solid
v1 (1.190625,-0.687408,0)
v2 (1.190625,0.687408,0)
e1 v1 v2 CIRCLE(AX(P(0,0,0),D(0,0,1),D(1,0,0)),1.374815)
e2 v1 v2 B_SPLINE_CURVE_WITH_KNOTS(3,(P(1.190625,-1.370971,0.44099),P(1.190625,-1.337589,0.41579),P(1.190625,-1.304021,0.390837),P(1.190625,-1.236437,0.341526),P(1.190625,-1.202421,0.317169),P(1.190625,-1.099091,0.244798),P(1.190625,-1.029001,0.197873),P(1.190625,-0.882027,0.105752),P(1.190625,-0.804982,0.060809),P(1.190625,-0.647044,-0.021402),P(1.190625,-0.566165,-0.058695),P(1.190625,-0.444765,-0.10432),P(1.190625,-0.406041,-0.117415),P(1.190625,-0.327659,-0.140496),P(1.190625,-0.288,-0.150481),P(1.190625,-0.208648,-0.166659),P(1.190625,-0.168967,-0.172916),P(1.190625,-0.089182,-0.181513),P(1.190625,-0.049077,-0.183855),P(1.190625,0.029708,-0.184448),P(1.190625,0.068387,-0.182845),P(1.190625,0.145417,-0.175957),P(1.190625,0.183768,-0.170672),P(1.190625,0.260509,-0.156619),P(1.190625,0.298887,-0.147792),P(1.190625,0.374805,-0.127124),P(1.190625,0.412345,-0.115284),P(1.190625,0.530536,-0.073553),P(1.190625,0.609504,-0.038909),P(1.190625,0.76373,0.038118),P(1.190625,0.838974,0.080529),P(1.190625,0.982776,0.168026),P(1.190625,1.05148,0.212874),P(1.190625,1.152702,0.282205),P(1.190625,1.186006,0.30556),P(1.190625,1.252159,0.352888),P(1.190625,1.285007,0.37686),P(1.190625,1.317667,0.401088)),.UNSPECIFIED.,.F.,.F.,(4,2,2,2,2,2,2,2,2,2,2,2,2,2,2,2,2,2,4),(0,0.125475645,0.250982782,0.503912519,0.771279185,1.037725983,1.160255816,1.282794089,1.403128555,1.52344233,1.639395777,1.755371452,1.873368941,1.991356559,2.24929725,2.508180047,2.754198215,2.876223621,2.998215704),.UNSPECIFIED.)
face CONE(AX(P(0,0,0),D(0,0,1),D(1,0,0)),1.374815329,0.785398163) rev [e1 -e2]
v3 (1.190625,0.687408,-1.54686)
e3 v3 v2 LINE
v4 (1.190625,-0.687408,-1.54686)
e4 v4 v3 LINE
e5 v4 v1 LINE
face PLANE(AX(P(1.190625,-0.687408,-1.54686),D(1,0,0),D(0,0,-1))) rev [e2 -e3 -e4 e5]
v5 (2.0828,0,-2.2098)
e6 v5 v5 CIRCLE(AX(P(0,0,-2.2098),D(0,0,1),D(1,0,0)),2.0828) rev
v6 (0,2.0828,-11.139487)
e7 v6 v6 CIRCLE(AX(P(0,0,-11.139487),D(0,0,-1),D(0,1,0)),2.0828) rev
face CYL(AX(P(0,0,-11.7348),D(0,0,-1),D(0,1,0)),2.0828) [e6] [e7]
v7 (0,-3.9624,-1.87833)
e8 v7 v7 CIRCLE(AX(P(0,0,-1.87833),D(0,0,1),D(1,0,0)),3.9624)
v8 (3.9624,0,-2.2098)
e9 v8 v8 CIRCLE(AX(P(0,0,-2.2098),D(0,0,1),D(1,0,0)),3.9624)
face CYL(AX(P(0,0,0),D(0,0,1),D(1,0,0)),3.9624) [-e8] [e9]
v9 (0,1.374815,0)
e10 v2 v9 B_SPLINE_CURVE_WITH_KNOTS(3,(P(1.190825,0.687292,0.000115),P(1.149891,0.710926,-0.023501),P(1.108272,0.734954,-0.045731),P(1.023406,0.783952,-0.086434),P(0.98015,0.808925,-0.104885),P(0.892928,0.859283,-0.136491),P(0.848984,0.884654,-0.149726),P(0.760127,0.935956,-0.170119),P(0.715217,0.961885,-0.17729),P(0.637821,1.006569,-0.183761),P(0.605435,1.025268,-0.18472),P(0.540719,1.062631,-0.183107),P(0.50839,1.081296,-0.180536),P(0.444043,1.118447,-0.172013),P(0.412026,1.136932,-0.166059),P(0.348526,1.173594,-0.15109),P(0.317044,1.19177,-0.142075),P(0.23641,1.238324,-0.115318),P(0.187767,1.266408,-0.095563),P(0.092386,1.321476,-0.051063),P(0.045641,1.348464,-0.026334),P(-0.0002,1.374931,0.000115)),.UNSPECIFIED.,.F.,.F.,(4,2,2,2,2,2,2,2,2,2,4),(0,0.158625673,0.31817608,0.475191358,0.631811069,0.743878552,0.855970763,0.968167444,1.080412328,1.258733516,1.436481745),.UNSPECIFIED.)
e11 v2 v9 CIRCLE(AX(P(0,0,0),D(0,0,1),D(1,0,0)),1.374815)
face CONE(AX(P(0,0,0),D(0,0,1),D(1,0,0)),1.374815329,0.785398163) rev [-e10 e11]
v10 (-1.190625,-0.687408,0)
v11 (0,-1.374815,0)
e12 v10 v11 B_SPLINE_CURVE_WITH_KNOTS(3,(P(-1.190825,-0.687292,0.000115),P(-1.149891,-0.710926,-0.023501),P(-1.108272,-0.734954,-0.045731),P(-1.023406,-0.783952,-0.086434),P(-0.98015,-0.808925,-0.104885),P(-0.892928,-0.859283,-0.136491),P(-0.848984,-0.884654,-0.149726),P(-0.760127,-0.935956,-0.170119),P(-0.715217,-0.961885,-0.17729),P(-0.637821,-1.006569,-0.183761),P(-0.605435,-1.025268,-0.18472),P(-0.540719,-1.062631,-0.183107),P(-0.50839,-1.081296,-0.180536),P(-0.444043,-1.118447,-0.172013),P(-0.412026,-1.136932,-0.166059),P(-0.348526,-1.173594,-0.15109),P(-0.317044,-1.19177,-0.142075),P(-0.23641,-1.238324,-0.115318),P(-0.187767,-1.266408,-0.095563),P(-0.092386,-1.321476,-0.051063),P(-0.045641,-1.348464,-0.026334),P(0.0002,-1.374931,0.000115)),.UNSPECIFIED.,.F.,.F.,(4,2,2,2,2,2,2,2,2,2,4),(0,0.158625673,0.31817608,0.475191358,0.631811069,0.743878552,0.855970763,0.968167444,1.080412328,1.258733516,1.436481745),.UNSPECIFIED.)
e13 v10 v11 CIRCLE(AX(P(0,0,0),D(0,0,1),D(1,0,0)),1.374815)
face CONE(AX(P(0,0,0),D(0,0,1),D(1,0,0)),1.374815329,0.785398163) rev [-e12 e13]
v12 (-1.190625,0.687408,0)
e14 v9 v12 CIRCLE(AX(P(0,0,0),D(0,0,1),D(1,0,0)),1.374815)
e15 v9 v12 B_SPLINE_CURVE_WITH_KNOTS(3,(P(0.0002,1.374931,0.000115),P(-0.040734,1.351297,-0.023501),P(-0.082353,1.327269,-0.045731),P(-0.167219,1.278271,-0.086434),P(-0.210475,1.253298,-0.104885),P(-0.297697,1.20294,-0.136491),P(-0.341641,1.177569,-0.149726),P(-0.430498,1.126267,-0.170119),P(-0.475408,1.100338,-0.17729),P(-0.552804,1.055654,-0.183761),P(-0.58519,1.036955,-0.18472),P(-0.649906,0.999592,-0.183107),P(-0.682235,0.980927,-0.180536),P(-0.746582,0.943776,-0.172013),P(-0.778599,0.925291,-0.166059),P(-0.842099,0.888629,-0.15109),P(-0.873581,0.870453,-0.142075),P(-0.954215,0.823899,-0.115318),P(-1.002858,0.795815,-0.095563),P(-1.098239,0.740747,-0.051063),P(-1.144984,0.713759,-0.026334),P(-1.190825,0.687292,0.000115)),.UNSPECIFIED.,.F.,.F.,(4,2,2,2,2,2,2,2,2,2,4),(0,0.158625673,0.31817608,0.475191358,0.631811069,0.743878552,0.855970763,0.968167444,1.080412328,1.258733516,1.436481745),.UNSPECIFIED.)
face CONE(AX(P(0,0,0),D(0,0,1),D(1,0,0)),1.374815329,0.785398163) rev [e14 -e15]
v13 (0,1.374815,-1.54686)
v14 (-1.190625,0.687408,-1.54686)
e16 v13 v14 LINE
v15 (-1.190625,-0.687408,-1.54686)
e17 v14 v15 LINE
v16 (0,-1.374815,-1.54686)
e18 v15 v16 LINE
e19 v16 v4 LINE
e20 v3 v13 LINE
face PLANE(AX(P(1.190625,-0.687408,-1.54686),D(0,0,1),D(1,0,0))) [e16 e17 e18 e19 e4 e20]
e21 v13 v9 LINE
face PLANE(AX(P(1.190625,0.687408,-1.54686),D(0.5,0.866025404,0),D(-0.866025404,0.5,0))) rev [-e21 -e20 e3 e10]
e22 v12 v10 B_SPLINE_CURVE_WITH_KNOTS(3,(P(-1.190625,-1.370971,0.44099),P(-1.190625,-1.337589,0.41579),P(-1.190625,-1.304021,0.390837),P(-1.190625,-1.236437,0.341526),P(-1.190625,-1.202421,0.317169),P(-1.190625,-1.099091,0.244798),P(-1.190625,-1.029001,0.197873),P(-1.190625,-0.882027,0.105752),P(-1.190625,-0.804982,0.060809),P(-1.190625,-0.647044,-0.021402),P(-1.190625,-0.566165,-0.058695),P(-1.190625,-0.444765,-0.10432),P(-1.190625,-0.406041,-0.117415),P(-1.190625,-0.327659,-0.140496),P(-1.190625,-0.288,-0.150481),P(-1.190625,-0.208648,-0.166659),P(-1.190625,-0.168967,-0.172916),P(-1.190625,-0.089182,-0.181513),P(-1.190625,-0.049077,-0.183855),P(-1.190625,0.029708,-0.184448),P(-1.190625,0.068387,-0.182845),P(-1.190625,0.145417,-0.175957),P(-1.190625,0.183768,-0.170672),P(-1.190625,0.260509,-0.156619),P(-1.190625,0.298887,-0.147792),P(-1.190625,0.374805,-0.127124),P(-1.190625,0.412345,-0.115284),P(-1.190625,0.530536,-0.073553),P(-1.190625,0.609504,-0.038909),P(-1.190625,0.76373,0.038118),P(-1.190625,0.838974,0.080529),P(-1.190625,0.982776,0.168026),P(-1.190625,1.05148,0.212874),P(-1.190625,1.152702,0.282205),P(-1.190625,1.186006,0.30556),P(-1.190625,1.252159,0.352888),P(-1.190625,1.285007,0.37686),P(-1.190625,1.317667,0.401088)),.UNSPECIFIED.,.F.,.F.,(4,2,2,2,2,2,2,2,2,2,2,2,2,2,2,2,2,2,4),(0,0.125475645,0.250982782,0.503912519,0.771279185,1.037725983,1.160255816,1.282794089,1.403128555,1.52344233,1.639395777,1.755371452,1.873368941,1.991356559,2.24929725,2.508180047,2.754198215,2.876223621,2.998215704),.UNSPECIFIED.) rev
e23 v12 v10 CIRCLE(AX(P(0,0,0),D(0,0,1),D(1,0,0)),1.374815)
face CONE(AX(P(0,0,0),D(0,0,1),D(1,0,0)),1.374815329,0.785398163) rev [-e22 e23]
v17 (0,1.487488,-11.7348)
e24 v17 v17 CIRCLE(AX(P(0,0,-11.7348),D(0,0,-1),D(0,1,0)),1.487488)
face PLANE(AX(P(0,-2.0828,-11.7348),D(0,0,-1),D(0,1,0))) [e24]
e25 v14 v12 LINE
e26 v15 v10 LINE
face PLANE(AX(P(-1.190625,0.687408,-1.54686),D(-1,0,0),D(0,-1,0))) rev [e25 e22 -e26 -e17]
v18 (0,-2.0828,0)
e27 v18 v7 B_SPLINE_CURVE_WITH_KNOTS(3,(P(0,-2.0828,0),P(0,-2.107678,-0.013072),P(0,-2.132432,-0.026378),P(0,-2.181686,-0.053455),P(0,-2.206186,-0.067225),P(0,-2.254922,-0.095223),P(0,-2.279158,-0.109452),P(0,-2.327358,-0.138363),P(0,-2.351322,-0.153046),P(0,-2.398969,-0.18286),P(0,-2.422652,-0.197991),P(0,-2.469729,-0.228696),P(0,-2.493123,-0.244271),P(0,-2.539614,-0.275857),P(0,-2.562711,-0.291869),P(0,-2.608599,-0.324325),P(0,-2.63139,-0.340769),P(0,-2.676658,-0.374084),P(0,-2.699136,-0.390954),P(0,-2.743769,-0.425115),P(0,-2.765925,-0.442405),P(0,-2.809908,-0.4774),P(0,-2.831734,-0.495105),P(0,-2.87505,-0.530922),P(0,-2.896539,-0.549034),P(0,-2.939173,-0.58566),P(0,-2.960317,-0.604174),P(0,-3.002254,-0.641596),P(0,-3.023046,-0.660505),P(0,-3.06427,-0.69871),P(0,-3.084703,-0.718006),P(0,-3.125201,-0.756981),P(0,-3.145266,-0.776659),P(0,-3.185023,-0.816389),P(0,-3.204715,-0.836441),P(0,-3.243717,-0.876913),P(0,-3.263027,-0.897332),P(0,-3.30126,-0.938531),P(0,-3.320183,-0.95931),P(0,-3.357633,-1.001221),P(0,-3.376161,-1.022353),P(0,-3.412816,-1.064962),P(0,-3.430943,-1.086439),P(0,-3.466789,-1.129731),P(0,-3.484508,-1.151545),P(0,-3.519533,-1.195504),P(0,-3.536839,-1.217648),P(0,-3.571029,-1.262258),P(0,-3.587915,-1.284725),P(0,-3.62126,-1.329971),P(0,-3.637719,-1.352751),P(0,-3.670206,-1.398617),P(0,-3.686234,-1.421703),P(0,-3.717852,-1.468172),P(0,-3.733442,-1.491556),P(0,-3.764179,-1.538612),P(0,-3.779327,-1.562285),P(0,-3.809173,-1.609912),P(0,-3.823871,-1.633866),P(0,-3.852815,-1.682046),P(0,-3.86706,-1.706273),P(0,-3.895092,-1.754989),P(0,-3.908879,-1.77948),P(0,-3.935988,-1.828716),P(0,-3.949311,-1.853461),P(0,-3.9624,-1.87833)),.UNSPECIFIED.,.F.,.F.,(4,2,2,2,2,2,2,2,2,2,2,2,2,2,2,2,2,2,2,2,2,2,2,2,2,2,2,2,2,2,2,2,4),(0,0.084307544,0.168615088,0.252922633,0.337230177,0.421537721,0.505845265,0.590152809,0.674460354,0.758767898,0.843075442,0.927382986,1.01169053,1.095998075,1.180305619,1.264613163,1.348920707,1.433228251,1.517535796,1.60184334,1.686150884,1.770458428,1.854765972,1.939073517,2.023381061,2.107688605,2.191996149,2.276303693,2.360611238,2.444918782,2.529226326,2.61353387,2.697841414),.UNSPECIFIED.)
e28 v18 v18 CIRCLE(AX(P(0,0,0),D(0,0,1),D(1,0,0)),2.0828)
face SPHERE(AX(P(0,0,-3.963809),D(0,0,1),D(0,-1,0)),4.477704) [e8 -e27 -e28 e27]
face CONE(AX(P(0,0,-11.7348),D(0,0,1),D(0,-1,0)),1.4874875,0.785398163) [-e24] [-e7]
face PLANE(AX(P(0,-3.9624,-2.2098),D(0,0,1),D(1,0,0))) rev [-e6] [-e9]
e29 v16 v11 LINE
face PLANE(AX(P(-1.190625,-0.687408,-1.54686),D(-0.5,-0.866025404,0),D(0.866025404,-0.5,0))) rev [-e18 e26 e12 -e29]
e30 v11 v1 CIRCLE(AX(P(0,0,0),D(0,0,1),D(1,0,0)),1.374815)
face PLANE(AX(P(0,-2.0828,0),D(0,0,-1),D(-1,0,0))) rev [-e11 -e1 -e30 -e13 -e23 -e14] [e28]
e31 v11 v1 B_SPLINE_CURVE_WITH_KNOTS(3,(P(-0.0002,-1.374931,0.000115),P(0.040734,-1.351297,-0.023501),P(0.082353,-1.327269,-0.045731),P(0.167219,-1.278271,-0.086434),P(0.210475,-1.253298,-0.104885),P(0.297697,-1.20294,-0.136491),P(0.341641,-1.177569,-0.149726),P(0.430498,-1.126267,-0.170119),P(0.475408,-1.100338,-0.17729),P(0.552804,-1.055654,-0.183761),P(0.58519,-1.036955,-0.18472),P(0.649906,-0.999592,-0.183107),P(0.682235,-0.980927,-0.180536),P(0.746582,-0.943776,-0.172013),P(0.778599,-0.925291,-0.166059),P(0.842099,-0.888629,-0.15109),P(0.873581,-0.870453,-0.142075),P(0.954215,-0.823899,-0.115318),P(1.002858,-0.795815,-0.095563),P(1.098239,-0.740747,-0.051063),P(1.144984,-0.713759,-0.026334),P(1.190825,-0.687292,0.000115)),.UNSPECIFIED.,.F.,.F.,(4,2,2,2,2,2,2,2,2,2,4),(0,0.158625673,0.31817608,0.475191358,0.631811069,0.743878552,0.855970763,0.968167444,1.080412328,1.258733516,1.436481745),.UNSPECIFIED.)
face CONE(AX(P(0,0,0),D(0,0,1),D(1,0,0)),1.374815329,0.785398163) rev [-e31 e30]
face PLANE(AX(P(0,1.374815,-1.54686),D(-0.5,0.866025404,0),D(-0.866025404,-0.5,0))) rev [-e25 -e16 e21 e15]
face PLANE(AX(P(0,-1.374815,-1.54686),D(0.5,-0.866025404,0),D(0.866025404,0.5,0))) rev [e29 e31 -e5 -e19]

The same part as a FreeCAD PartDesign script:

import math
import FreeCAD as App
import Part
import Sketcher
from FreeCAD import Vector
Q = App.Units.Quantity


def edges_at(feature, points):
    """Names of the edges that pass closest to the given points."""
    edges = feature.Shape.Edges
    near = lambda p: min(range(len(edges)), key=lambda i: edges[i].distToShape(Part.Vertex(*p))[0])
    return sorted({f"Edge{near(p) + 1}" for p in points})

doc = App.newDocument("Part")
params = doc.addObject("Spreadsheet::Sheet", "Params")
for row, (alias, value) in enumerate([
    ("sketch1_width", "0.082 in"),
    ("sketch1_height", "0.375 in"),
    ("revolution_angle", "360 deg"),
    ("chamfer_size", "0.595313 mm"),
    ("sketch2_width", "0.082 in"),
    ("sketch2_width2", "0.156 in"),
    ("sketch2_height", "0.087 in"),
    ("revolution2_angle", "360 deg"),
    ("pocket1_length", "0.0609 in"),
    ("groove_angle", "360 deg"),
], start=1):
    params.set(f"A{row}", alias)
    params.set(f"B{row}", "=" + value)
    params.setAlias(f"B{row}", alias)

body = doc.addObject("PartDesign::Body", "Body")

sketch1 = doc.addObject("Sketcher::SketchObject", "Sketch")
body.addObject(sketch1)
sketch1.AttachmentSupport = (doc.YZ_Plane, [""])
sketch1.MapMode = "FlatFace"
sketch1.addGeometry([
    Part.LineSegment(Vector(2.1, -2.2, 0), Vector(0, -2.2, 0)),
    Part.LineSegment(Vector(0, -2.2, 0), Vector(0, -11.7, 0)),
    Part.LineSegment(Vector(0, -11.7, 0), Vector(2.1, -11.7, 0)),
    Part.LineSegment(Vector(2.1, -11.7, 0), Vector(2.1, -2.2, 0)),
], False)
sketch1.addConstraint([
    Sketcher.Constraint("Coincident", 0, 2, 1, 1),
    Sketcher.Constraint("Coincident", 1, 2, 2, 1),
    Sketcher.Constraint("Coincident", 2, 2, 3, 1),
    Sketcher.Constraint("Coincident", 3, 2, 0, 1),
    Sketcher.Constraint("Horizontal", 0),
    Sketcher.Constraint("Vertical", 1),
    Sketcher.Constraint("Horizontal", 2),
    Sketcher.Constraint("Vertical", 3),
    Sketcher.Constraint("PointOnObject", 0, 2, -2),
    Sketcher.Constraint("DistanceX", 0, 2, 0, 1, Q("0.082 in")),
    Sketcher.Constraint("DistanceY", 1, 2, 1, 1, Q("0.375 in")),
    Sketcher.Constraint("DistanceY", 0, 2, -1, 1, Q("0.087 in")),
])
sketch1.setExpression("Constraints[9]", "Params.sketch1_width")
sketch1.setExpression("Constraints[10]", "Params.sketch1_height")
revolution = doc.addObject("PartDesign::Revolution", "Revolution")
body.addObject(revolution)
revolution.Profile = sketch1
revolution.ReferenceAxis = (sketch1, ["V_Axis"])
revolution.setExpression("Angle", "Params.revolution_angle")
doc.recompute()

chamfer = doc.addObject("PartDesign::Chamfer", "Chamfer")
body.addObject(chamfer)
chamfer.Base = (revolution, edges_at(revolution, [(0, -2.083, -11.735)]))
chamfer.setExpression("Size", "Params.chamfer_size")

sketch2 = doc.addObject("Sketcher::SketchObject", "Sketch001")
body.addObject(sketch2)
sketch2.AttachmentSupport = (doc.YZ_Plane, [""])
sketch2.MapMode = "FlatFace"
sketch2.addGeometry([
    Part.LineSegment(Vector(3.96, -2.21, 0), Vector(3.96, -1.88, 0)),
    Part.ArcOfCircle(Part.Circle(Vector(0, -3.96, 0), Vector(0, 0, 1), 4.48), math.radians(28), math.radians(62)),
    Part.LineSegment(Vector(2.08, 0, 0), Vector(0, 0, 0)),
    Part.LineSegment(Vector(0, 0, 0), Vector(0, -2.21, 0)),
    Part.LineSegment(Vector(0, -2.21, 0), Vector(3.96, -2.21, 0)),
], False)
sketch2.addConstraint([
    Sketcher.Constraint("Coincident", 0, 2, 1, 1),
    Sketcher.Constraint("Coincident", 1, 2, 2, 1),
    Sketcher.Constraint("Coincident", 2, 2, 3, 1),
    Sketcher.Constraint("Coincident", 3, 2, 4, 1),
    Sketcher.Constraint("Coincident", 4, 2, 0, 1),
    Sketcher.Constraint("Vertical", 0),
    Sketcher.Constraint("Horizontal", 2),
    Sketcher.Constraint("Vertical", 3),
    Sketcher.Constraint("Horizontal", 4),
    Sketcher.Constraint("Coincident", 2, 2, -1, 1),
    Sketcher.Constraint("PointOnObject", 1, 3, -2),
    Sketcher.Constraint("DistanceX", 2, 2, 2, 1, Q("0.082 in")),
    Sketcher.Constraint("DistanceX", 4, 1, 4, 2, Q("0.156 in")),
    Sketcher.Constraint("DistanceY", 3, 2, 3, 1, Q("0.087 in")),
    Sketcher.Constraint("Radius", 1, 4.477704),
])
sketch2.setExpression("Constraints[11]", "Params.sketch2_width")
sketch2.setExpression("Constraints[12]", "Params.sketch2_width2")
sketch2.setExpression("Constraints[13]", "Params.sketch2_height")
revolution2 = doc.addObject("PartDesign::Revolution", "Revolution001")
body.addObject(revolution2)
revolution2.Profile = sketch2
revolution2.ReferenceAxis = (sketch2, ["V_Axis"])
revolution2.setExpression("Angle", "Params.revolution2_angle")

sketch3 = doc.addObject("Sketcher::SketchObject", "Sketch002")
body.addObject(sketch3)
sketch3.AttachmentSupport = (doc.XY_Plane, [""])
sketch3.MapMode = "FlatFace"
sketch3.addGeometry([
    Part.LineSegment(Vector(1.2, -0.7, 0), Vector(1.2, 0.7, 0)),
    Part.LineSegment(Vector(1.2, 0.7, 0), Vector(0, 1.4, 0)),
    Part.LineSegment(Vector(0, 1.4, 0), Vector(-1.2, 0.7, 0)),
    Part.LineSegment(Vector(-1.2, 0.7, 0), Vector(-1.2, -0.7, 0)),
    Part.LineSegment(Vector(-1.2, -0.7, 0), Vector(0, -1.4, 0)),
    Part.LineSegment(Vector(0, -1.4, 0), Vector(1.2, -0.7, 0)),
], False)
sketch3.addConstraint([
    Sketcher.Constraint("Coincident", 0, 2, 1, 1),
    Sketcher.Constraint("Coincident", 1, 2, 2, 1),
    Sketcher.Constraint("Coincident", 2, 2, 3, 1),
    Sketcher.Constraint("Coincident", 3, 2, 4, 1),
    Sketcher.Constraint("Coincident", 4, 2, 5, 1),
    Sketcher.Constraint("Coincident", 5, 2, 0, 1),
    Sketcher.Constraint("Vertical", 0),
    Sketcher.Constraint("Vertical", 3),
    Sketcher.Constraint("Symmetric", 0, 2, 3, 2, -1, 1),
    Sketcher.Constraint("Symmetric", 1, 2, 4, 2, -1, 1),
    Sketcher.Constraint("PointOnObject", 1, 2, -2),
    Sketcher.Constraint("Parallel", 2, 5),
    Sketcher.Constraint("Horizontal", 0, 2, 2, 2),
    Sketcher.Constraint("Angle", 1, Q("150 deg")),
    Sketcher.Constraint("DistanceX", -1, 1, 0, 2, Q("0.046875 in")),
    Sketcher.Constraint("DistanceY", 0, 1, 0, 2, 1.374815),
])
pocket1 = doc.addObject("PartDesign::Pocket", "Pocket")
body.addObject(pocket1)
pocket1.Profile = sketch3
pocket1.setExpression("Length", "Params.pocket1_length")

sketch4 = doc.addObject("Sketcher::SketchObject", "Sketch003")
body.addObject(sketch4)
sketch4.AttachmentSupport = (doc.YZ_Plane, [""])
sketch4.MapMode = "FlatFace"
sketch4.addGeometry([
    Part.LineSegment(Vector(0, 0, 0), Vector(-1.4, 0, 0)),
    Part.LineSegment(Vector(-1.4, 0, 0), Vector(0, -1.4, 0)),
    Part.LineSegment(Vector(0, -1.4, 0), Vector(0, 0, 0)),
], False)
sketch4.addConstraint([
    Sketcher.Constraint("Coincident", 0, 2, 1, 1),
    Sketcher.Constraint("Coincident", 1, 2, 2, 1),
    Sketcher.Constraint("Coincident", 2, 2, 0, 1),
    Sketcher.Constraint("Horizontal", 0),
    Sketcher.Constraint("Vertical", 2),
    Sketcher.Constraint("Coincident", 2, 2, -1, 1),
    Sketcher.Constraint("Equal", 0, 2),
    Sketcher.Constraint("DistanceX", 0, 2, 0, 1, 1.374815),
])
groove = doc.addObject("PartDesign::Groove", "Groove")
body.addObject(groove)
groove.Profile = sketch4
groove.ReferenceAxis = (sketch4, ["V_Axis"])
groove.setExpression("Angle", "Params.groove_angle")

doc.recompute()
